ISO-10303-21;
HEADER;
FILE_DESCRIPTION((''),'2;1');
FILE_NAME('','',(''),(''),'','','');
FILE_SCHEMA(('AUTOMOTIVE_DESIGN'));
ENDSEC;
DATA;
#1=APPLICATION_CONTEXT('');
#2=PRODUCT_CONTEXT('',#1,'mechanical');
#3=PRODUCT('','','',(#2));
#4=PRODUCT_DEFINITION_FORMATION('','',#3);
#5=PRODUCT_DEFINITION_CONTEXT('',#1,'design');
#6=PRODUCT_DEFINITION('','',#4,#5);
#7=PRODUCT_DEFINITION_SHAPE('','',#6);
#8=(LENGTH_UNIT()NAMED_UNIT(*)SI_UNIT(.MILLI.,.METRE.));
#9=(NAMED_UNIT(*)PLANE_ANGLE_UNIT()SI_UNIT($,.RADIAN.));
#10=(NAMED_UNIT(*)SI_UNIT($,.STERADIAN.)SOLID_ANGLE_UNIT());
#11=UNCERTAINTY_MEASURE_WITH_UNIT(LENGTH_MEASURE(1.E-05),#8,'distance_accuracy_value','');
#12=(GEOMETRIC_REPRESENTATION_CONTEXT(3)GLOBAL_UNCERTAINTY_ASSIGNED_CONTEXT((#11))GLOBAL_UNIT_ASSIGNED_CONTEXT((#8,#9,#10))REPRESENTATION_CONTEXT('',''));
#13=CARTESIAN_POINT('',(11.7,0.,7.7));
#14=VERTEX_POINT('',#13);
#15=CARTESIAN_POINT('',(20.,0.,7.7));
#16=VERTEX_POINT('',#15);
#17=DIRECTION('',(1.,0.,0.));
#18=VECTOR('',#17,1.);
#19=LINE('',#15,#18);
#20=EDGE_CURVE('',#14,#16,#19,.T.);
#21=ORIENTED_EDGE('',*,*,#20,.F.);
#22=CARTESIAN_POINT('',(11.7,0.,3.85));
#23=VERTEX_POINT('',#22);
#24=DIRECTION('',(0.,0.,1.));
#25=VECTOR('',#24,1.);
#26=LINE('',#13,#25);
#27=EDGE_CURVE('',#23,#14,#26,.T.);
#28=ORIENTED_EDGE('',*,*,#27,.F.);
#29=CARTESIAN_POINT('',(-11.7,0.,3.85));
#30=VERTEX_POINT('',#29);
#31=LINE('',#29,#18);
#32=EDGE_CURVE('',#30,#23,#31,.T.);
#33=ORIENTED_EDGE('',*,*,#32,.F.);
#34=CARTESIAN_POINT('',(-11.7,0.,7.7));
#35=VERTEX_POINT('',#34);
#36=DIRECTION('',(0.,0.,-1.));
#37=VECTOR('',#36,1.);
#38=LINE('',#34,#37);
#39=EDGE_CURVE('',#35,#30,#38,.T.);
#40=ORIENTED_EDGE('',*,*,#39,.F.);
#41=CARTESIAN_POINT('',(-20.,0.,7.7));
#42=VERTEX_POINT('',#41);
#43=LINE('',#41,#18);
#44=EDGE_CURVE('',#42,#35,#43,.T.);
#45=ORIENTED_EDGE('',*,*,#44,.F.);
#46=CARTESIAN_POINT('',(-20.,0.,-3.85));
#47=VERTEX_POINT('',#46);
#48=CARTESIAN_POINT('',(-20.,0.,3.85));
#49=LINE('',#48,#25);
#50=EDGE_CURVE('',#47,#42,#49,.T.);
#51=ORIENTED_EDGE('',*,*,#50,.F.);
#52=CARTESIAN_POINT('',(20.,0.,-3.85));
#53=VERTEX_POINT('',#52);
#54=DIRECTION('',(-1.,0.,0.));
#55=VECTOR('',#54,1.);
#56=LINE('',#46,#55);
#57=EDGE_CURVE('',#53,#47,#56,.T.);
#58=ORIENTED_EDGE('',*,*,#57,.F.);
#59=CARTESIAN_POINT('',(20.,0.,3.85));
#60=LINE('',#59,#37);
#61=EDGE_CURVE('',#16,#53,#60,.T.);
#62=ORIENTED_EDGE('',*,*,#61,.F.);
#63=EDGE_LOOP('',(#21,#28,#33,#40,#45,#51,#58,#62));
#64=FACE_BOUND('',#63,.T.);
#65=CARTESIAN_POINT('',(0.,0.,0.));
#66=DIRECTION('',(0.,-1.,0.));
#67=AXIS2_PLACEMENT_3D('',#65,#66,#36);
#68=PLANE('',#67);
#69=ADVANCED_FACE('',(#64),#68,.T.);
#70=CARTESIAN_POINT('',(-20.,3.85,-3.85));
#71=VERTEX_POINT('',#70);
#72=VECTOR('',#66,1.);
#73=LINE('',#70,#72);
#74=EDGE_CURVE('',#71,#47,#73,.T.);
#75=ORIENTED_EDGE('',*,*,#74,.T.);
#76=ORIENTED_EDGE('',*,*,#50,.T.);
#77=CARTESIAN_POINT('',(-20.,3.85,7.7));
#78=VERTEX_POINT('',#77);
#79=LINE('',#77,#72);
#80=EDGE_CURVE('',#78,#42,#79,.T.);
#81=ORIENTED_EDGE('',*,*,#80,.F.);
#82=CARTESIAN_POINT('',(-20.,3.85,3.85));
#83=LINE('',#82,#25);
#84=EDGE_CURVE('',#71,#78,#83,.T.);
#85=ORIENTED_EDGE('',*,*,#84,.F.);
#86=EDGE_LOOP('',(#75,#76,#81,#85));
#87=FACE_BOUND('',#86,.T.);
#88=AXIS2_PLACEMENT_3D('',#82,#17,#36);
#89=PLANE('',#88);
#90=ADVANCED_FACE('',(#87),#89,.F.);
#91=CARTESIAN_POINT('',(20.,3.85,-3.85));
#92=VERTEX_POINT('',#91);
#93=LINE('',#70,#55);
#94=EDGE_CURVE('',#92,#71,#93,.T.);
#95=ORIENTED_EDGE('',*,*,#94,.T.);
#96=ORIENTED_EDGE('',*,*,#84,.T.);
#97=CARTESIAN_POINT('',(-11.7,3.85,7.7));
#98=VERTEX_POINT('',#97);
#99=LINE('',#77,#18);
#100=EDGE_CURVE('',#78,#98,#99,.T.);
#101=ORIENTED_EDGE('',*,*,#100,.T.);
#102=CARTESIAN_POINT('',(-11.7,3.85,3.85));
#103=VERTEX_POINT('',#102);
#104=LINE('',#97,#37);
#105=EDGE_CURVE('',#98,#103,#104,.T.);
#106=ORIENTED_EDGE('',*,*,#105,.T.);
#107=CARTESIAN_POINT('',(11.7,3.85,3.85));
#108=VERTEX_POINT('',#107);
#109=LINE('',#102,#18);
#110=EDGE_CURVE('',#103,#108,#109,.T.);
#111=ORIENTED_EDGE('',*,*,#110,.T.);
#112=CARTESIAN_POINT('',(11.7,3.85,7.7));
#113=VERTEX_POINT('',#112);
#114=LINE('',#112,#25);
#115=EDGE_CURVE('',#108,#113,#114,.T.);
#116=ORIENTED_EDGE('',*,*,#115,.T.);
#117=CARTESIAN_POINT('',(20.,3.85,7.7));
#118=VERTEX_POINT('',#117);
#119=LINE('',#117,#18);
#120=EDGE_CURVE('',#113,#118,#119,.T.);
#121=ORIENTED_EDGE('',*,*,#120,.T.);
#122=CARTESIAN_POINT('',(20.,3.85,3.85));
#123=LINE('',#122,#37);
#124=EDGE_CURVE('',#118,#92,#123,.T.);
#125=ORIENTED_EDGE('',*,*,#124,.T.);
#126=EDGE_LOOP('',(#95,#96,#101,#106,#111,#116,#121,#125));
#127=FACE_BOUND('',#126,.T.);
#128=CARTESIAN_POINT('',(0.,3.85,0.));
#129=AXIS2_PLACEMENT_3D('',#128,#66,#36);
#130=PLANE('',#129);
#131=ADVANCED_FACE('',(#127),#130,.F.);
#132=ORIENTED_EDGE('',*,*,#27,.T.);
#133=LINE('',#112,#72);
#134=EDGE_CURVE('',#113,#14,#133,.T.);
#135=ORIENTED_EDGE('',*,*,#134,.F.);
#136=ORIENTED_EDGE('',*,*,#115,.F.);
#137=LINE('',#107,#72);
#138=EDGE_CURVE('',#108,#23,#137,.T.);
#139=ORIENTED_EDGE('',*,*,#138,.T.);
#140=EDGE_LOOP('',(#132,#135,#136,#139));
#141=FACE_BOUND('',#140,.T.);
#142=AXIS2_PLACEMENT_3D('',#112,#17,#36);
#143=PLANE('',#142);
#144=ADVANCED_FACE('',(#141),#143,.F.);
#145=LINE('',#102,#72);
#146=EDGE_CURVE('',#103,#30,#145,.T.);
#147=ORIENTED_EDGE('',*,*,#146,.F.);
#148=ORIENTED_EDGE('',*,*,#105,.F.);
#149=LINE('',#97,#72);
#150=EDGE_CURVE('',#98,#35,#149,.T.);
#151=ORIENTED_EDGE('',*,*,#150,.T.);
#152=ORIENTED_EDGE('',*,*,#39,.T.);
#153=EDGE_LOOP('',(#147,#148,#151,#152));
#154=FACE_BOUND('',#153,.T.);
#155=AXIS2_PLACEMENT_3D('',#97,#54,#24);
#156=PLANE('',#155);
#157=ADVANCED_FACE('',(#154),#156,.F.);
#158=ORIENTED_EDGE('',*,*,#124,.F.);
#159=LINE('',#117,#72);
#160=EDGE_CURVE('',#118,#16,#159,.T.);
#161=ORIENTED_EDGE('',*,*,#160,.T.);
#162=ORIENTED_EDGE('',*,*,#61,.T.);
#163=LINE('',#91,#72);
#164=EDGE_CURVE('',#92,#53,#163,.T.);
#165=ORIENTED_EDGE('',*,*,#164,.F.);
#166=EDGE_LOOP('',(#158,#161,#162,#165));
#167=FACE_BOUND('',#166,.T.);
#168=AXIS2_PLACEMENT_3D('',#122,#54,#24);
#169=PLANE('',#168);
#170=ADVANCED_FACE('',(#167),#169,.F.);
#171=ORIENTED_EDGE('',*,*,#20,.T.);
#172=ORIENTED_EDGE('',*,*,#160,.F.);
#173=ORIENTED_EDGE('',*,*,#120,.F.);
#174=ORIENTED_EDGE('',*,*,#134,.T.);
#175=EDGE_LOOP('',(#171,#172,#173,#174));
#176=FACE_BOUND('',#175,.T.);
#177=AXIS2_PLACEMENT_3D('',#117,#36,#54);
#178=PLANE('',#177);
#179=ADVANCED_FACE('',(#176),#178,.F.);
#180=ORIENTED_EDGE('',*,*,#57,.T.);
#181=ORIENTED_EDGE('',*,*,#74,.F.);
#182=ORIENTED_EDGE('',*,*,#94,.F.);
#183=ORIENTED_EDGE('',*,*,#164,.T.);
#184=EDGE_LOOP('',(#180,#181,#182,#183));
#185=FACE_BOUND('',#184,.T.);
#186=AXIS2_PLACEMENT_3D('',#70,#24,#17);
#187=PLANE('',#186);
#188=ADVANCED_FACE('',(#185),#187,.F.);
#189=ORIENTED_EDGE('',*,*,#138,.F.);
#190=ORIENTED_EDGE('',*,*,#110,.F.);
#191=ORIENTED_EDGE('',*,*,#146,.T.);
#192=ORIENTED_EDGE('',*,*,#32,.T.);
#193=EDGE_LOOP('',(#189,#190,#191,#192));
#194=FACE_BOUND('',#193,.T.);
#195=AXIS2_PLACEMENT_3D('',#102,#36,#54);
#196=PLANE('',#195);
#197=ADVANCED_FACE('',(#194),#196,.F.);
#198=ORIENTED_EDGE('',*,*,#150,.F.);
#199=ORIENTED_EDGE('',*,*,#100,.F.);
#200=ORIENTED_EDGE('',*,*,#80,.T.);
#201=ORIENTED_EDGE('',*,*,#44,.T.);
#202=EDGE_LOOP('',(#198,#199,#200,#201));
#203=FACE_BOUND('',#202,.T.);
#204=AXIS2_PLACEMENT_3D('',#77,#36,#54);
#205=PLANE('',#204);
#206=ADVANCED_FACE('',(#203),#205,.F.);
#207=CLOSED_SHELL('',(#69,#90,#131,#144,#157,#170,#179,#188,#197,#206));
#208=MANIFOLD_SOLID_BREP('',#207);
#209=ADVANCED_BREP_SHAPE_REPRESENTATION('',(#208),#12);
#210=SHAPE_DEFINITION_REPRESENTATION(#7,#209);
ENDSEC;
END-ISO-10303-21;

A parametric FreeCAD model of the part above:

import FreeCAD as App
import Part
import Sketcher
Q = App.Units.Quantity


def add_polygon(sketch, points):
    """Adds a closed chain of lines whose ends are joined by coincident constraints."""
    first, n = sketch.GeometryCount, len(points)
    for a, b in zip(points, points[1:] + points[:1]):
        sketch.addGeometry(Part.LineSegment(App.Vector(*a, 0), App.Vector(*b, 0)), False)
    for i in range(n):
        sketch.addConstraint(Sketcher.Constraint("Coincident", first + i, 2, first + (i + 1) % n, 1))

doc = App.newDocument("Part")
body = doc.addObject("PartDesign::Body", "Body")

# Sketch on XZ plane
sketch1 = doc.addObject("Sketcher::SketchObject", "Sketch")
body.addObject(sketch1)
sketch1.AttachmentSupport = (doc.XZ_Plane, [""])
sketch1.MapMode = "FlatFace"
add_polygon(sketch1, [(-20, 7.7), (-11.7, 7.7), (-11.7, 3.9), (11.7, 3.9), (11.7, 7.7), (20, 7.7), (20, -3.9), (-20, -3.9)])  # lines 0-7
sketch1.addConstraint(Sketcher.Constraint("Horizontal", 0))
sketch1.addConstraint(Sketcher.Constraint("Vertical", 1))
sketch1.addConstraint(Sketcher.Constraint("Horizontal", 2))
sketch1.addConstraint(Sketcher.Constraint("Vertical", 3))
sketch1.addConstraint(Sketcher.Constraint("Horizontal", 4))
sketch1.addConstraint(Sketcher.Constraint("Vertical", 5))
sketch1.addConstraint(Sketcher.Constraint("Horizontal", 6))
sketch1.addConstraint(Sketcher.Constraint("Vertical", 7))
sketch1.addConstraint(Sketcher.Constraint("Symmetric", 0, 2, 3, 2, -2))
sketch1.addConstraint(Sketcher.Constraint("Equal", 0, 4))
sketch1.addConstraint(Sketcher.Constraint("DistanceX", 6, 2, 6, 1, Q("40 mm")))
sketch1.addConstraint(Sketcher.Constraint("DistanceX", 0, 1, 0, 2, Q("8.3 mm")))
sketch1.addConstraint(Sketcher.Constraint("DistanceY", 1, 2, 1, 1, Q("3.85 mm")))
sketch1.addConstraint(Sketcher.Constraint("DistanceY", 5, 2, 5, 1, Q("11.55 mm")))
sketch1.addConstraint(Sketcher.Constraint("DistanceY", -1, 1, 0, 2, Q("7.7 mm")))
pad1 = doc.addObject("PartDesign::Pad", "Pad")
body.addObject(pad1)
pad1.Profile = sketch1
pad1.Length = 3.85
pad1.Reversed = True

doc.recompute()
